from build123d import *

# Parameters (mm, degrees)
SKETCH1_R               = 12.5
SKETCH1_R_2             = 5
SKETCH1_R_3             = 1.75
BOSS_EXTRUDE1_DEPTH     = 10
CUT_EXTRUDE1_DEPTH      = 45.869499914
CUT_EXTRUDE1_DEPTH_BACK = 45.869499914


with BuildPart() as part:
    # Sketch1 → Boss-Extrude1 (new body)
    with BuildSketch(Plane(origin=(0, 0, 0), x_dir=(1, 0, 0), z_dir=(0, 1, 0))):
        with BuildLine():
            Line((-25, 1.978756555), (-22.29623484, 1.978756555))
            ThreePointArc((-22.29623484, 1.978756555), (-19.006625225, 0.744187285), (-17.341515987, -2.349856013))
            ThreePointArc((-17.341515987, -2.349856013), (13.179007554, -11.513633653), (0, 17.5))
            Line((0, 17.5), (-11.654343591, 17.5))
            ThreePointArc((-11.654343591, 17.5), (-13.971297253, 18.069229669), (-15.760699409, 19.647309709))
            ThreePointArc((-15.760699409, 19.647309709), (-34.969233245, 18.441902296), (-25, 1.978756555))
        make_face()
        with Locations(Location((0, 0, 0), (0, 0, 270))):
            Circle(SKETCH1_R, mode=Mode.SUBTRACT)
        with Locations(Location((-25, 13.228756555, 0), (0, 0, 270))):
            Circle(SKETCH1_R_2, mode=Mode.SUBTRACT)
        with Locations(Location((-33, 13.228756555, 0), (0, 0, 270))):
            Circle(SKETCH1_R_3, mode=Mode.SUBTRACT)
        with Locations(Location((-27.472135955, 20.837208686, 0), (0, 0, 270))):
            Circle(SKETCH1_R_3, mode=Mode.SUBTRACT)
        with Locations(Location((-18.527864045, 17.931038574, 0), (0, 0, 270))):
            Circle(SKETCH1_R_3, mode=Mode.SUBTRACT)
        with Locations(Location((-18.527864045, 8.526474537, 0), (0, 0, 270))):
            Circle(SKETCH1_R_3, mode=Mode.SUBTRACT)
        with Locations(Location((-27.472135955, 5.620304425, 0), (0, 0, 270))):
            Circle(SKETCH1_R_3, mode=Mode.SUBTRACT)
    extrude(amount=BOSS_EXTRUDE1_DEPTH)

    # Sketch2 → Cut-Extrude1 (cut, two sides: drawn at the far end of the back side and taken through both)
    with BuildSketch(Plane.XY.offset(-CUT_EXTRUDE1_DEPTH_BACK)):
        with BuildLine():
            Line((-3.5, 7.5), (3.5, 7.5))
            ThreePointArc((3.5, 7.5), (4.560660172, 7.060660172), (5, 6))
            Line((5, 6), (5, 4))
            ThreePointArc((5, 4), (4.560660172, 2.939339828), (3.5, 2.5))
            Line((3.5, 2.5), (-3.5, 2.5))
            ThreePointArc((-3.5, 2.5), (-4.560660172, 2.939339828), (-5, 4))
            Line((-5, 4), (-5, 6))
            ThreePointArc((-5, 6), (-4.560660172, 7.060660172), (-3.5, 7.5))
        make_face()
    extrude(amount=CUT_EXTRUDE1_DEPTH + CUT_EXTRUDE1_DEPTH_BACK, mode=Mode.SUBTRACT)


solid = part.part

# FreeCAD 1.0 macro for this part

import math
import FreeCAD as App
import Part
import Sketcher

doc = App.newDocument("Part")
body = doc.addObject("PartDesign::Body", "Body")

# Sketch on XZ plane
sketch1 = doc.addObject("Sketcher::SketchObject", "Sketch")
body.addObject(sketch1)
sketch1.AttachmentSupport = (doc.XZ_Plane, [""])
sketch1.MapMode = "FlatFace"
sketch1.addGeometry([
    Part.LineSegment(App.Vector(-25, -1.978757, 0), App.Vector(-22.296235, -1.978757, 0)),  # 0
    Part.ArcOfCircle(Part.Circle(App.Vector(-22.296235, 3.021243, 0), App.Vector(0, 0, 1), 5), math.radians(-90), math.radians(-7.716843)),  # 1
    Part.ArcOfCircle(Part.Circle(App.Vector(0, 0, 0), App.Vector(0, 0, 1), 17.5), math.radians(-90), math.radians(172.283157)),  # 2
    Part.LineSegment(App.Vector(0, -17.5, 0), App.Vector(-11.654344, -17.5, 0)),  # 3
    Part.ArcOfCircle(Part.Circle(App.Vector(-11.654344, -22.5, 0), App.Vector(0, 0, 1), 5), math.radians(90), math.radians(145.212245)),  # 4
    Part.ArcOfCircle(Part.Circle(App.Vector(-25, -13.228757, 0), App.Vector(0, 0, 1), 11.25), math.radians(90), math.radians(325.212245)),  # 5
    Part.Circle(App.Vector(0, 0, 0), App.Vector(0, 0, 1), 12.5),  # 6
    Part.Circle(App.Vector(-27.472136, -5.620304, 0), App.Vector(0, 0, 1), 1.75),  # 7
    Part.Circle(App.Vector(-33, -13.228757, 0), App.Vector(0, 0, 1), 1.75),  # 8
    Part.Circle(App.Vector(-25, -13.228757, 0), App.Vector(0, 0, 1), 5),  # 9
    Part.Circle(App.Vector(-18.527864, -8.526475, 0), App.Vector(0, 0, 1), 1.75),  # 10
    Part.Circle(App.Vector(-27.472136, -20.837209, 0), App.Vector(0, 0, 1), 1.75),  # 11
    Part.Circle(App.Vector(-18.527864, -17.931039, 0), App.Vector(0, 0, 1), 1.75),  # 12
], False)
sketch1.addConstraint([
    Sketcher.Constraint("Tangent", 0, 2, 1, 1),
    Sketcher.Constraint("Tangent", 1, 2, 2, 2),
    Sketcher.Constraint("Tangent", 2, 1, 3, 1),
    Sketcher.Constraint("Tangent", 3, 2, 4, 1),
    Sketcher.Constraint("Tangent", 4, 2, 5, 2),
    Sketcher.Constraint("Tangent", 5, 1, 0, 1),
    Sketcher.Constraint("Horizontal", 0),
    Sketcher.Constraint("Horizontal", 3),
    Sketcher.Constraint("Coincident", 2, 3, -1, 1),
    Sketcher.Constraint("Coincident", 6, 3, -1, 1),
    Sketcher.Constraint("Coincident", 9, 3, 5, 3),
    Sketcher.Constraint("Equal", 1, 4),
    Sketcher.Constraint("Equal", 7, 8),
    Sketcher.Constraint("Equal", 4, 9),
    Sketcher.Constraint("Equal", 8, 10),
    Sketcher.Constraint("Equal", 10, 11),
    Sketcher.Constraint("Equal", 11, 12),
    Sketcher.Constraint("Horizontal", 5, 3, 8, 3),
    Sketcher.Constraint("Vertical", 7, 3, 11, 3),
    Sketcher.Constraint("Vertical", 10, 3, 12, 3),
    Sketcher.Constraint("Diameter", 6, 25.0),
    Sketcher.Constraint("Diameter", 9, 10.0),
    Sketcher.Constraint("Diameter", 7, 3.5),
    Sketcher.Constraint("Radius", 2, 17.5),
    Sketcher.Constraint("Radius", 5, 11.25),
    Sketcher.Constraint("DistanceX", 5, 3, -1, 1, 25.0),
    Sketcher.Constraint("DistanceX", 8, 3, -1, 1, 33.0),
    Sketcher.Constraint("DistanceX", 4, 2, -1, 1, 15.760699),
    Sketcher.Constraint("DistanceX", 7, 3, 1, 3, 5.175901),
    Sketcher.Constraint("DistanceY", 11, 3, -1, 1, 20.837209),
    Sketcher.Constraint("DistanceY", 12, 3, -1, 1, 17.931039),
    Sketcher.Constraint("DistanceX", 7, 3, 10, 3, 8.944272),
    Sketcher.Constraint("DistanceY", 10, 3, 7, 3, 2.90617),
    Sketcher.Constraint("DistanceY", 10, 3, 1, 2, 10.876331),
])
pad1 = doc.addObject("PartDesign::Pad", "Pad")
body.addObject(pad1)
pad1.Profile = sketch1
pad1.Length = 10
pad1.Reversed = True

# Sketch on XY plane
sketch2 = doc.addObject("Sketcher::SketchObject", "Sketch001")
body.addObject(sketch2)
sketch2.AttachmentSupport = (doc.XY_Plane, [""])
sketch2.MapMode = "FlatFace"
sketch2.addGeometry([
    Part.LineSegment(App.Vector(3.5, 7.5, 0), App.Vector(-3.5, 7.5, 0)),  # 0
    Part.ArcOfCircle(Part.Circle(App.Vector(-3.5, 6, 0), App.Vector(0, 0, 1), 1.5), math.radians(90), math.radians(180)),  # 1
    Part.LineSegment(App.Vector(-5, 6, 0), App.Vector(-5, 4, 0)),  # 2
    Part.ArcOfCircle(Part.Circle(App.Vector(-3.5, 4, 0), App.Vector(0, 0, 1), 1.5), math.radians(180), math.radians(270)),  # 3
    Part.LineSegment(App.Vector(-3.5, 2.5, 0), App.Vector(3.5, 2.5, 0)),  # 4
    Part.ArcOfCircle(Part.Circle(App.Vector(3.5, 4, 0), App.Vector(0, 0, 1), 1.5), math.radians(-90), math.radians(0)),  # 5
    Part.LineSegment(App.Vector(5, 4, 0), App.Vector(5, 6, 0)),  # 6
    Part.ArcOfCircle(Part.Circle(App.Vector(3.5, 6, 0), App.Vector(0, 0, 1), 1.5), math.radians(0), math.radians(90)),  # 7
], False)
sketch2.addConstraint([
    Sketcher.Constraint("Tangent", 0, 2, 1, 1),
    Sketcher.Constraint("Tangent", 1, 2, 2, 1),
    Sketcher.Constraint("Tangent", 2, 2, 3, 1),
    Sketcher.Constraint("Tangent", 3, 2, 4, 1),
    Sketcher.Constraint("Tangent", 4, 2, 5, 1),
    Sketcher.Constraint("Tangent", 5, 2, 6, 1),
    Sketcher.Constraint("Tangent", 6, 2, 7, 1),
    Sketcher.Constraint("Tangent", 7, 2, 0, 1),
    Sketcher.Constraint("Horizontal", 0),
    Sketcher.Constraint("Vertical", 2),
    Sketcher.Constraint("Horizontal", 4),
    Sketcher.Constraint("Vertical", 6),
    Sketcher.Constraint("Equal", 1, 3),
    Sketcher.Constraint("Equal", 3, 5),
    Sketcher.Constraint("Equal", 5, 7),
    Sketcher.Constraint("Radius", 1, 1.5),
    Sketcher.Constraint("DistanceX", 0, 2, 0, 1, 7.0),
    Sketcher.Constraint("DistanceY", 2, 2, 2, 1, 2.0),
    Sketcher.Constraint("DistanceY", -1, 1, 1, 3, 6.0),
    Sketcher.Constraint("DistanceX", 1, 2, -1, 1, 5.0),
])
pocket1 = doc.addObject("PartDesign::Pocket", "Pocket")
body.addObject(pocket1)
pocket1.Profile = sketch2
pocket1.Type = "ThroughAll"
pocket1.Midplane = True

doc.recompute()
